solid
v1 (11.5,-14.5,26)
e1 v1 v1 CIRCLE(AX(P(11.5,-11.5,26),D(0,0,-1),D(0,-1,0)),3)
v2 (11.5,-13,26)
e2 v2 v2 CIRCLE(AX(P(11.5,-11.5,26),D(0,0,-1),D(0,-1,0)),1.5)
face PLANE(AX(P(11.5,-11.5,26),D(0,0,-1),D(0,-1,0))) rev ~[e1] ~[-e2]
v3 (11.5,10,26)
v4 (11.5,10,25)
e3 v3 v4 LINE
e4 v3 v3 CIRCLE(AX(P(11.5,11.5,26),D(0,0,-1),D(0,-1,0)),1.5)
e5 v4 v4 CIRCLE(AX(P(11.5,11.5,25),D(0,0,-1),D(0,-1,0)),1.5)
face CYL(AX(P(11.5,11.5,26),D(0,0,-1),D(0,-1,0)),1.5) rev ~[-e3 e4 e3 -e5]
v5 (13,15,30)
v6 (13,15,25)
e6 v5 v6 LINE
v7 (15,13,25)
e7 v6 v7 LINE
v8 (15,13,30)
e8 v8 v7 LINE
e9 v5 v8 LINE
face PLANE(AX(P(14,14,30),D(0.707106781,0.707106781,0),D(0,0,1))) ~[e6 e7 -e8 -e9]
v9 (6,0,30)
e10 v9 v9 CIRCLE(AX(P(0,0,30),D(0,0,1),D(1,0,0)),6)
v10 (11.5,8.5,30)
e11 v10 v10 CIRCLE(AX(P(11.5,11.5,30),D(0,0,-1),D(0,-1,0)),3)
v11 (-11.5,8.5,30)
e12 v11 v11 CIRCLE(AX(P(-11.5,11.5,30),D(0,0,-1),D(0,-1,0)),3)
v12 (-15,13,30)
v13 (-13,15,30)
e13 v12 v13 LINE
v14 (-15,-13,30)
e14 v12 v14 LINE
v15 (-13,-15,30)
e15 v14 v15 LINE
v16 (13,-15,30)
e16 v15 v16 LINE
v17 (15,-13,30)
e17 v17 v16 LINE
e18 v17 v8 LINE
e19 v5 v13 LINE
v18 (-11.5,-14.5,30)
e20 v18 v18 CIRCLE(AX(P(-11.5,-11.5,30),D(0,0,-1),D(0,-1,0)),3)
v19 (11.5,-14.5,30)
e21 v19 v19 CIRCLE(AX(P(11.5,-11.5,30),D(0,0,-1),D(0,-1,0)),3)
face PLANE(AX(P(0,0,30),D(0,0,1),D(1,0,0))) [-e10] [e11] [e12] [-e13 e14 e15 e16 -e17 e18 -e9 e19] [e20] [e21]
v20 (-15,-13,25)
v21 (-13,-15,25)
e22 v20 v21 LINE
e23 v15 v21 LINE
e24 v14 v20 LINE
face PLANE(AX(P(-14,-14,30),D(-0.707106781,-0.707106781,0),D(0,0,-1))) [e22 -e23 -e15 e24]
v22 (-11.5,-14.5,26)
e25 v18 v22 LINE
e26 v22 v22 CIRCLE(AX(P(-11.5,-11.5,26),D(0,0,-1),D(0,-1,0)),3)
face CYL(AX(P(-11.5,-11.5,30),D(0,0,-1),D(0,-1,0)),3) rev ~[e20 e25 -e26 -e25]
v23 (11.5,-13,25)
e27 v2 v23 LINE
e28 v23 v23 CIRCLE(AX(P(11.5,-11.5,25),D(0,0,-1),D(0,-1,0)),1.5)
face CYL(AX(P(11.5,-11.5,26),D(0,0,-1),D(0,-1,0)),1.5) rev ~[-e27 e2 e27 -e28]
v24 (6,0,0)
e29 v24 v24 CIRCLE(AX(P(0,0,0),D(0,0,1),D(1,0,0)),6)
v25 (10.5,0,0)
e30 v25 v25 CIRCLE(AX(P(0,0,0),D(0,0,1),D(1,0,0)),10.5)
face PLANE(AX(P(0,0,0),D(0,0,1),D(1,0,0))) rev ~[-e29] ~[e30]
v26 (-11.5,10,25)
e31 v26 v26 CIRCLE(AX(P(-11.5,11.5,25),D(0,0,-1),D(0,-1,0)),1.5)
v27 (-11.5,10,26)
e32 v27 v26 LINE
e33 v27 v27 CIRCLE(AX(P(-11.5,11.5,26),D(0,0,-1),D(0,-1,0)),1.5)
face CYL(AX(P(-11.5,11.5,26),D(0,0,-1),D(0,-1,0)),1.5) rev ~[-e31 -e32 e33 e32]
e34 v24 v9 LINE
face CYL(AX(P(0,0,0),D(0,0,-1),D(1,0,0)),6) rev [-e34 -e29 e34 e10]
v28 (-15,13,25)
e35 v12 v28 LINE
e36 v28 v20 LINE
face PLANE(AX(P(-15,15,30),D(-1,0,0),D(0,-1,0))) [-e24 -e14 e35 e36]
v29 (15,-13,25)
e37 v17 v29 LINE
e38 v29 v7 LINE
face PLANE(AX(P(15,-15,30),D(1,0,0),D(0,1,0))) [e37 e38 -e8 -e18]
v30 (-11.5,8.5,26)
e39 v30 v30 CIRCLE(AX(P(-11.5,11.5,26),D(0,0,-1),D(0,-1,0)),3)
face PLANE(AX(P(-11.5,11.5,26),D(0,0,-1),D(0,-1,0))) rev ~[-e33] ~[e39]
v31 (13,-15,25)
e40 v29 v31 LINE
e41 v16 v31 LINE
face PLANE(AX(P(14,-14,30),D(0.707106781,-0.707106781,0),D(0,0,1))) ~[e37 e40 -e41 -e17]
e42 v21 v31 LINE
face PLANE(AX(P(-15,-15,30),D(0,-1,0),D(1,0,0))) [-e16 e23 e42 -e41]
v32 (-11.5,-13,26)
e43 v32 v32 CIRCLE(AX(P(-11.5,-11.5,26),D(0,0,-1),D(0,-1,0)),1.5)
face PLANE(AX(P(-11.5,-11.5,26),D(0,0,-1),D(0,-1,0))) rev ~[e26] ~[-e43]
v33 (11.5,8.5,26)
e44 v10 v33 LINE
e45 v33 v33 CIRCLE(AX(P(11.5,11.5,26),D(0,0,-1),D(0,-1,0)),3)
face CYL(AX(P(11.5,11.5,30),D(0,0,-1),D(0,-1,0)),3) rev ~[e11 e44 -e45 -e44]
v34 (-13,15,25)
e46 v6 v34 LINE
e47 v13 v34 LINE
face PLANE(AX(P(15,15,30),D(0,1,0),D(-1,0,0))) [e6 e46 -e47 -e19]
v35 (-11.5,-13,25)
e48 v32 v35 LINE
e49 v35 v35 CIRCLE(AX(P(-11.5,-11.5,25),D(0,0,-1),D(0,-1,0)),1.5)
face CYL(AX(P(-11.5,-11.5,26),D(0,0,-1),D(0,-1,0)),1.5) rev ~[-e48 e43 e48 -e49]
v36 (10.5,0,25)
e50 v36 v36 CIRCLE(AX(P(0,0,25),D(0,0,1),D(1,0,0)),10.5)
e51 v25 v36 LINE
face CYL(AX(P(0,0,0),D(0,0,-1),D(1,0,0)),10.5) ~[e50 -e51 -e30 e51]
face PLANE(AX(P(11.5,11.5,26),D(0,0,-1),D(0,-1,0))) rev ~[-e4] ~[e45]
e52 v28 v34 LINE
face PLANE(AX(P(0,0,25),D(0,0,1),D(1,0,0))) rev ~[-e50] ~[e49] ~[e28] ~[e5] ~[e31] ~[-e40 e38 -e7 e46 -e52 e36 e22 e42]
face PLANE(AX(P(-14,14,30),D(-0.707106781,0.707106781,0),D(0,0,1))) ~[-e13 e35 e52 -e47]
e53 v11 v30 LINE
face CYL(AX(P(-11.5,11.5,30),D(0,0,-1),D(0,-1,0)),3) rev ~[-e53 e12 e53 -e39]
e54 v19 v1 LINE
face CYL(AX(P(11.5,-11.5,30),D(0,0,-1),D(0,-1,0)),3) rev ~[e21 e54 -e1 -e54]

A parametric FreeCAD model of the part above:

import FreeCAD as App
import Part
import Sketcher


def edges_at(feature, points):
    """Names of the edges that pass closest to the given points."""
    edges = feature.Shape.Edges
    near = lambda p: min(range(len(edges)), key=lambda i: edges[i].distToShape(Part.Vertex(*p))[0])
    return sorted({f"Edge{near(p) + 1}" for p in points})

doc = App.newDocument("Part")
params = doc.addObject("Spreadsheet::Sheet", "Params")
for row, (alias, value) in enumerate([
    ("sketch1_diameter", "21 mm"),
    ("sketch1_diameter2", "12 mm"),
    ("pad1_length", "30 mm"),
    ("sketch2_width", "30 mm"),
    ("sketch2_diameter", "21 mm"),
    ("pad2_length", "5 mm"),
    ("chamfer_size", "2 mm"),
    ("sketch3_diameter", "3 mm"),
    ("hole_diameter", "3 mm"),
    ("hole_depth", "8 mm"),
    ("hole_cbore_diameter", "6 mm"),
    ("hole_cbore_depth", "4 mm"),
], start=1):
    params.set(f"A{row}", alias)
    params.set(f"B{row}", "=" + value)
    params.setAlias(f"B{row}", alias)

body = doc.addObject("PartDesign::Body", "Body")

sketch1 = doc.addObject("Sketcher::SketchObject", "Sketch")
body.addObject(sketch1)
sketch1.AttachmentSupport = (doc.XY_Plane, [""])
sketch1.MapMode = "FlatFace"
sketch1.addGeometry([
    Part.Circle(App.Vector(0, 0, 0), App.Vector(0, 0, 1), 10),
    Part.Circle(App.Vector(0, 0, 0), App.Vector(0, 0, 1), 6),
], False)
sketch1.addConstraint([
    Sketcher.Constraint("Coincident", 0, 3, -1, 1),
    Sketcher.Constraint("Coincident", 1, 3, -1, 1),
    Sketcher.Constraint("Diameter", 0, 21.0),
    Sketcher.Constraint("Diameter", 1, 12.0),
])
sketch1.setExpression("Constraints[2]", "Params.sketch1_diameter")
sketch1.setExpression("Constraints[3]", "Params.sketch1_diameter2")
pad1 = doc.addObject("PartDesign::Pad", "Pad")
body.addObject(pad1)
pad1.Profile = sketch1
pad1.setExpression("Length", "Params.pad1_length")

sketch2 = doc.addObject("Sketcher::SketchObject", "Sketch001")
body.addObject(sketch2)
sketch2.AttachmentSupport = (doc.XY_Plane, [""])
sketch2.MapMode = "FlatFace"
sketch2.AttachmentOffset = App.Placement(App.Vector(0, 0, 30), App.Rotation())
sketch2.addGeometry([
    Part.LineSegment(App.Vector(-15, 15, 0), App.Vector(-15, -15, 0)),
    Part.LineSegment(App.Vector(-15, -15, 0), App.Vector(15, -15, 0)),
    Part.LineSegment(App.Vector(15, -15, 0), App.Vector(15, 15, 0)),
    Part.LineSegment(App.Vector(15, 15, 0), App.Vector(-15, 15, 0)),
    Part.Circle(App.Vector(0, 0, 0), App.Vector(0, 0, 1), 10),
], False)
sketch2.addConstraint([
    Sketcher.Constraint("Coincident", 0, 2, 1, 1),
    Sketcher.Constraint("Coincident", 1, 2, 2, 1),
    Sketcher.Constraint("Coincident", 2, 2, 3, 1),
    Sketcher.Constraint("Coincident", 3, 2, 0, 1),
    Sketcher.Constraint("Vertical", 0),
    Sketcher.Constraint("Horizontal", 1),
    Sketcher.Constraint("Vertical", 2),
    Sketcher.Constraint("Horizontal", 3),
    Sketcher.Constraint("Coincident", 4, 3, -1, 1),
    Sketcher.Constraint("Symmetric", 0, 2, 2, 2, -1, 1),
    Sketcher.Constraint("Equal", 3, 0),
    Sketcher.Constraint("DistanceX", 1, 1, 1, 2, 30.0),
    Sketcher.Constraint("Diameter", 4, 21.0),
])
sketch2.setExpression("Constraints[11]", "Params.sketch2_width")
sketch2.setExpression("Constraints[12]", "Params.sketch2_diameter")
pad2 = doc.addObject("PartDesign::Pad", "Pad001")
body.addObject(pad2)
pad2.Profile = sketch2
pad2.setExpression("Length", "Params.pad2_length")
pad2.Reversed = True
doc.recompute()

chamfer = doc.addObject("PartDesign::Chamfer", "Chamfer")
body.addObject(chamfer)
chamfer.Base = (pad2, edges_at(pad2, [
    (-15, 15, 27.5),
    (-15, -15, 27.5),
    (15, -15, 27.5),
    (15, 15, 27.5),
]))
chamfer.setExpression("Size", "Params.chamfer_size")

sketch3 = doc.addObject("Sketcher::SketchObject", "Sketch002")
body.addObject(sketch3)
sketch3.AttachmentSupport = (doc.XY_Plane, [""])
sketch3.MapMode = "FlatFace"
sketch3.AttachmentOffset = App.Placement(App.Vector(0, 0, 30), App.Rotation())
sketch3.addGeometry([
    Part.Circle(App.Vector(11.5, 11.5, 0), App.Vector(0, 0, 1), 1.5),
    Part.Circle(App.Vector(11.5, -11.5, 0), App.Vector(0, 0, 1), 1.5),
    Part.Circle(App.Vector(-11.5, -11.5, 0), App.Vector(0, 0, 1), 1.5),
    Part.Circle(App.Vector(-11.5, 11.5, 0), App.Vector(0, 0, 1), 1.5),
], False)
sketch3.addConstraint([
    Sketcher.Constraint("Equal", 0, 1),
    Sketcher.Constraint("Equal", 1, 2),
    Sketcher.Constraint("Equal", 2, 3),
    Sketcher.Constraint("Symmetric", 0, 3, 2, 3, -1, 1),
    Sketcher.Constraint("Symmetric", 1, 3, 3, 3, -1, 1),
    Sketcher.Constraint("Symmetric", 1, 3, 2, 3, -2),
    Sketcher.Constraint("Diameter", 0, 3.0),
    Sketcher.Constraint("DistanceY", 1, 3, 0, 3, 23.0),
    Sketcher.Constraint("DistanceX", 2, 3, 1, 3, 23.0),
])
sketch3.setExpression("Constraints[6]", "Params.sketch3_diameter")
doc.recompute()
hole = doc.addObject("PartDesign::Hole", "Hole")
body.addObject(hole)
hole.Profile = sketch3
hole.ThreadType = "None"
hole.setExpression("Diameter", "Params.hole_diameter")
hole.DepthType = "Dimension"
hole.setExpression("Depth", "Params.hole_depth")
hole.DrillPoint = "Angled"
hole.DrillPointAngle = 118
hole.HoleCutType = "Counterbore"
hole.setExpression("HoleCutDiameter", "Params.hole_cbore_diameter")
hole.setExpression("HoleCutDepth", "Params.hole_cbore_depth")

doc.recompute()
